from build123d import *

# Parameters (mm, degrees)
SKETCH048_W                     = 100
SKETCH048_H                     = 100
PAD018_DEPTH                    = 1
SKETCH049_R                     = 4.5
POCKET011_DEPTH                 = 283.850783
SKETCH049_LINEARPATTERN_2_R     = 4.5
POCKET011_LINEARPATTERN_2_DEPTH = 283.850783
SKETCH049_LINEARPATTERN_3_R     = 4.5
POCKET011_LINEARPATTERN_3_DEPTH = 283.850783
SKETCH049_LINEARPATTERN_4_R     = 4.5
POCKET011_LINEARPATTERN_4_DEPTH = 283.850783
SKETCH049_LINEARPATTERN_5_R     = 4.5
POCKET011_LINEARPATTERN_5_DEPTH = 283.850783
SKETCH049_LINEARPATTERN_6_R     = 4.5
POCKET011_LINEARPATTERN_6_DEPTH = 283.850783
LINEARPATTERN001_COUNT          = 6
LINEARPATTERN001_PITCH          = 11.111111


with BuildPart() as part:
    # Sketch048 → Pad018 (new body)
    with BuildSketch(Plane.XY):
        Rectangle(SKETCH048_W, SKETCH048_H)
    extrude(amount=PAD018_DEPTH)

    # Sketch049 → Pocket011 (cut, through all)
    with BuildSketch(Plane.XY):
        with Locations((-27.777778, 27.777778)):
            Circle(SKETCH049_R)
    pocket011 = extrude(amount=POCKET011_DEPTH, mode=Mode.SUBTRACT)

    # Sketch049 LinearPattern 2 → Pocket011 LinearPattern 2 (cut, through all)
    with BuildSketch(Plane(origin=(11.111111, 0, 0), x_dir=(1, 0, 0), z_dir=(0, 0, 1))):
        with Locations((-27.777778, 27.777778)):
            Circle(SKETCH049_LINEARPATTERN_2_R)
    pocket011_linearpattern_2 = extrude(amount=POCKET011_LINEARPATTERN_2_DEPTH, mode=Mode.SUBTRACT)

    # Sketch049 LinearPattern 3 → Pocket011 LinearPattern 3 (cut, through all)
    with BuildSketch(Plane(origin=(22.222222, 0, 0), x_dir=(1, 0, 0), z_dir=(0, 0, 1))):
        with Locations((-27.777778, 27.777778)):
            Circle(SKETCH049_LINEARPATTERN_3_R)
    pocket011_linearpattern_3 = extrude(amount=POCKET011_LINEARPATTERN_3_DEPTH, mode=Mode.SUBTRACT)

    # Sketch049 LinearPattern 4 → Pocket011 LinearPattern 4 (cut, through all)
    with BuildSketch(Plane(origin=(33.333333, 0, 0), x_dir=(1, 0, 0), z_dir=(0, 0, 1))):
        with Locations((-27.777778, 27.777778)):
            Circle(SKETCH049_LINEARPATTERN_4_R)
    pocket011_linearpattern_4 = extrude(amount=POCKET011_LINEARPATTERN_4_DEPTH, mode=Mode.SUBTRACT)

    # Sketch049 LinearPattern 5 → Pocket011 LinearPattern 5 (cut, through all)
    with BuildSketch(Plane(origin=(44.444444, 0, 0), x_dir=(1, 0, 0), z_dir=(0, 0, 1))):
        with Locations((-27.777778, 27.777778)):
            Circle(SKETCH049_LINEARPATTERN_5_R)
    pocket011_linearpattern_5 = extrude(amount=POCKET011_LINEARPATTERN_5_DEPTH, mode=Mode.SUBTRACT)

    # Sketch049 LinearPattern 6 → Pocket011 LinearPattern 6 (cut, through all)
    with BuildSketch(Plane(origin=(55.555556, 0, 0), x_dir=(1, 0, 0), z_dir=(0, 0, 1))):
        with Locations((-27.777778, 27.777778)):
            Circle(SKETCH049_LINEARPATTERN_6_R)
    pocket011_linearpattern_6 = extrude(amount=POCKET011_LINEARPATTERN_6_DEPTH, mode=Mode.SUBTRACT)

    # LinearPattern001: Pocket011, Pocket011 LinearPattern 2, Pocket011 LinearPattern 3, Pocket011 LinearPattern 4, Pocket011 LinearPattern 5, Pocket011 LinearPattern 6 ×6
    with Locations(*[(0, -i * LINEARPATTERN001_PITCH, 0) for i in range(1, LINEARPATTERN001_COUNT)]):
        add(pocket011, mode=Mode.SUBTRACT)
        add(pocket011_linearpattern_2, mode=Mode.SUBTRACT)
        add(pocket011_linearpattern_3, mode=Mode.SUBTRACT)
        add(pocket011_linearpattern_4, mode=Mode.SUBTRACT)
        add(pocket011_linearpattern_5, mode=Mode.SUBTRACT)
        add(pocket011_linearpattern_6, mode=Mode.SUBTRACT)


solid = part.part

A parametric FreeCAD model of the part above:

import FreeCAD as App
import Part
import Sketcher

V = App.Vector
Q = App.Units.Quantity


def add_polygon(sketch, points):
    """Adds a closed chain of lines whose ends are joined by coincident constraints."""
    first, n = sketch.GeometryCount, len(points)
    for a, b in zip(points, points[1:] + points[:1]):
        sketch.addGeometry(Part.LineSegment(App.Vector(*a, 0), App.Vector(*b, 0)), False)
    for i in range(n):
        sketch.addConstraint(Sketcher.Constraint("Coincident", first + i, 2, first + (i + 1) % n, 1))

doc = App.newDocument("Part")
body = doc.addObject("PartDesign::Body", "Body")

sketch1 = body.newObject("Sketcher::SketchObject", "Sketch")
sketch1.AttachmentSupport = (doc.getObject("XY_Plane"), [""])
sketch1.MapMode = "FlatFace"
add_polygon(sketch1, [(-50, 50), (-50, -50), (50, -50), (50, 50)])
sketch1.addConstraint([
    Sketcher.Constraint("Vertical", 0),
    Sketcher.Constraint("Horizontal", 1),
    Sketcher.Constraint("Vertical", 2),
    Sketcher.Constraint("Horizontal", 3),
    Sketcher.Constraint("Symmetric", 0, 2, 2, 2, -1, 1),
    Sketcher.Constraint("Equal", 3, 0),
    Sketcher.Constraint("DistanceX", 1, 1, 1, 2, Q("100 mm")),
])
pad1 = body.newObject("PartDesign::Pad", "Pad")
pad1.Profile = sketch1
pad1.Length = 1

sketch2 = body.newObject("Sketcher::SketchObject", "Sketch001")
sketch2.AttachmentSupport = (doc.getObject("XY_Plane"), [""])
sketch2.MapMode = "FlatFace"
sketch2.addGeometry(Part.Circle(V(-27.8, 27.8, 0), V(0, 0, 1), 4.5), False)
sketch2.addConstraint([
    Sketcher.Constraint("Diameter", 0, Q("9 mm")),
    Sketcher.Constraint("DistanceX", 0, 3, -1, 1, Q("27.777778 mm")),
    Sketcher.Constraint("DistanceY", -1, 1, 0, 3, Q("27.777778 mm")),
])
pocket1 = body.newObject("PartDesign::Pocket", "Pocket")
pocket1.Profile = sketch2
pocket1.Type = "ThroughAll"
pocket1.Reversed = True

sketch3 = body.newObject("Sketcher::SketchObject", "Sketch002")
sketch3.AttachmentSupport = (doc.getObject("XY_Plane"), [""])
sketch3.MapMode = "FlatFace"
sketch3.addGeometry(Part.Circle(V(-16.7, 27.8, 0), V(0, 0, 1), 4.5), False)
sketch3.addConstraint([
    Sketcher.Constraint("Diameter", 0, Q("9 mm")),
    Sketcher.Constraint("DistanceY", -1, 1, 0, 3, Q("27.777778 mm")),
    Sketcher.Constraint("DistanceX", 0, 3, -1, 1, Q("16.666667 mm")),
])
pocket2 = body.newObject("PartDesign::Pocket", "Pocket001")
pocket2.Profile = sketch3
pocket2.Type = "ThroughAll"
pocket2.Reversed = True

sketch4 = body.newObject("Sketcher::SketchObject", "Sketch003")
sketch4.AttachmentSupport = (doc.getObject("XY_Plane"), [""])
sketch4.MapMode = "FlatFace"
sketch4.addGeometry(Part.Circle(V(-5.6, 27.8, 0), V(0, 0, 1), 4.5), False)
sketch4.addConstraint([
    Sketcher.Constraint("Diameter", 0, Q("9 mm")),
    Sketcher.Constraint("DistanceY", -1, 1, 0, 3, Q("27.777778 mm")),
    Sketcher.Constraint("DistanceX", 0, 3, -1, 1, Q("5.555556 mm")),
])
pocket3 = body.newObject("PartDesign::Pocket", "Pocket002")
pocket3.Profile = sketch4
pocket3.Type = "ThroughAll"
pocket3.Reversed = True

sketch5 = body.newObject("Sketcher::SketchObject", "Sketch004")
sketch5.AttachmentSupport = (doc.getObject("XY_Plane"), [""])
sketch5.MapMode = "FlatFace"
sketch5.addGeometry(Part.Circle(V(5.6, 27.8, 0), V(0, 0, 1), 4.5), False)
sketch5.addConstraint([
    Sketcher.Constraint("Diameter", 0, Q("9 mm")),
    Sketcher.Constraint("DistanceY", -1, 1, 0, 3, Q("27.777778 mm")),
    Sketcher.Constraint("DistanceX", -1, 1, 0, 3, Q("5.555555 mm")),
])
pocket4 = body.newObject("PartDesign::Pocket", "Pocket003")
pocket4.Profile = sketch5
pocket4.Type = "ThroughAll"
pocket4.Reversed = True

sketch6 = body.newObject("Sketcher::SketchObject", "Sketch005")
sketch6.AttachmentSupport = (doc.getObject("XY_Plane"), [""])
sketch6.MapMode = "FlatFace"
sketch6.addGeometry(Part.Circle(V(16.7, 27.8, 0), V(0, 0, 1), 4.5), False)
sketch6.addConstraint([
    Sketcher.Constraint("Diameter", 0, Q("9 mm")),
    Sketcher.Constraint("DistanceY", -1, 1, 0, 3, Q("27.777778 mm")),
    Sketcher.Constraint("DistanceX", -1, 1, 0, 3, Q("16.666666 mm")),
])
pocket5 = body.newObject("PartDesign::Pocket", "Pocket004")
pocket5.Profile = sketch6
pocket5.Type = "ThroughAll"
pocket5.Reversed = True

sketch7 = body.newObject("Sketcher::SketchObject", "Sketch006")
sketch7.AttachmentSupport = (doc.getObject("XY_Plane"), [""])
sketch7.MapMode = "FlatFace"
sketch7.addGeometry(Part.Circle(V(27.8, 27.8, 0), V(0, 0, 1), 4.5), False)
sketch7.addConstraint([
    Sketcher.Constraint("Diameter", 0, Q("9 mm")),
    Sketcher.Constraint("DistanceX", -1, 1, 0, 3, Q("27.777778 mm")),
    Sketcher.Constraint("DistanceY", -1, 1, 0, 3, Q("27.777778 mm")),
])
pocket6 = body.newObject("PartDesign::Pocket", "Pocket005")
pocket6.Profile = sketch7
pocket6.Type = "ThroughAll"
pocket6.Reversed = True
doc.recompute()

linearpattern = body.newObject("PartDesign::LinearPattern", "LinearPattern")
linearpattern.Originals = [pocket1, pocket2, pocket3, pocket4, pocket5, pocket6]
linearpattern.Direction = (doc.getObject("Y_Axis"), [""])
linearpattern.Mode = "offset"
linearpattern.Offset = 11.111111
linearpattern.Occurrences = 6
linearpattern.Reversed = True
body.Tip = linearpattern

doc.recompute()
